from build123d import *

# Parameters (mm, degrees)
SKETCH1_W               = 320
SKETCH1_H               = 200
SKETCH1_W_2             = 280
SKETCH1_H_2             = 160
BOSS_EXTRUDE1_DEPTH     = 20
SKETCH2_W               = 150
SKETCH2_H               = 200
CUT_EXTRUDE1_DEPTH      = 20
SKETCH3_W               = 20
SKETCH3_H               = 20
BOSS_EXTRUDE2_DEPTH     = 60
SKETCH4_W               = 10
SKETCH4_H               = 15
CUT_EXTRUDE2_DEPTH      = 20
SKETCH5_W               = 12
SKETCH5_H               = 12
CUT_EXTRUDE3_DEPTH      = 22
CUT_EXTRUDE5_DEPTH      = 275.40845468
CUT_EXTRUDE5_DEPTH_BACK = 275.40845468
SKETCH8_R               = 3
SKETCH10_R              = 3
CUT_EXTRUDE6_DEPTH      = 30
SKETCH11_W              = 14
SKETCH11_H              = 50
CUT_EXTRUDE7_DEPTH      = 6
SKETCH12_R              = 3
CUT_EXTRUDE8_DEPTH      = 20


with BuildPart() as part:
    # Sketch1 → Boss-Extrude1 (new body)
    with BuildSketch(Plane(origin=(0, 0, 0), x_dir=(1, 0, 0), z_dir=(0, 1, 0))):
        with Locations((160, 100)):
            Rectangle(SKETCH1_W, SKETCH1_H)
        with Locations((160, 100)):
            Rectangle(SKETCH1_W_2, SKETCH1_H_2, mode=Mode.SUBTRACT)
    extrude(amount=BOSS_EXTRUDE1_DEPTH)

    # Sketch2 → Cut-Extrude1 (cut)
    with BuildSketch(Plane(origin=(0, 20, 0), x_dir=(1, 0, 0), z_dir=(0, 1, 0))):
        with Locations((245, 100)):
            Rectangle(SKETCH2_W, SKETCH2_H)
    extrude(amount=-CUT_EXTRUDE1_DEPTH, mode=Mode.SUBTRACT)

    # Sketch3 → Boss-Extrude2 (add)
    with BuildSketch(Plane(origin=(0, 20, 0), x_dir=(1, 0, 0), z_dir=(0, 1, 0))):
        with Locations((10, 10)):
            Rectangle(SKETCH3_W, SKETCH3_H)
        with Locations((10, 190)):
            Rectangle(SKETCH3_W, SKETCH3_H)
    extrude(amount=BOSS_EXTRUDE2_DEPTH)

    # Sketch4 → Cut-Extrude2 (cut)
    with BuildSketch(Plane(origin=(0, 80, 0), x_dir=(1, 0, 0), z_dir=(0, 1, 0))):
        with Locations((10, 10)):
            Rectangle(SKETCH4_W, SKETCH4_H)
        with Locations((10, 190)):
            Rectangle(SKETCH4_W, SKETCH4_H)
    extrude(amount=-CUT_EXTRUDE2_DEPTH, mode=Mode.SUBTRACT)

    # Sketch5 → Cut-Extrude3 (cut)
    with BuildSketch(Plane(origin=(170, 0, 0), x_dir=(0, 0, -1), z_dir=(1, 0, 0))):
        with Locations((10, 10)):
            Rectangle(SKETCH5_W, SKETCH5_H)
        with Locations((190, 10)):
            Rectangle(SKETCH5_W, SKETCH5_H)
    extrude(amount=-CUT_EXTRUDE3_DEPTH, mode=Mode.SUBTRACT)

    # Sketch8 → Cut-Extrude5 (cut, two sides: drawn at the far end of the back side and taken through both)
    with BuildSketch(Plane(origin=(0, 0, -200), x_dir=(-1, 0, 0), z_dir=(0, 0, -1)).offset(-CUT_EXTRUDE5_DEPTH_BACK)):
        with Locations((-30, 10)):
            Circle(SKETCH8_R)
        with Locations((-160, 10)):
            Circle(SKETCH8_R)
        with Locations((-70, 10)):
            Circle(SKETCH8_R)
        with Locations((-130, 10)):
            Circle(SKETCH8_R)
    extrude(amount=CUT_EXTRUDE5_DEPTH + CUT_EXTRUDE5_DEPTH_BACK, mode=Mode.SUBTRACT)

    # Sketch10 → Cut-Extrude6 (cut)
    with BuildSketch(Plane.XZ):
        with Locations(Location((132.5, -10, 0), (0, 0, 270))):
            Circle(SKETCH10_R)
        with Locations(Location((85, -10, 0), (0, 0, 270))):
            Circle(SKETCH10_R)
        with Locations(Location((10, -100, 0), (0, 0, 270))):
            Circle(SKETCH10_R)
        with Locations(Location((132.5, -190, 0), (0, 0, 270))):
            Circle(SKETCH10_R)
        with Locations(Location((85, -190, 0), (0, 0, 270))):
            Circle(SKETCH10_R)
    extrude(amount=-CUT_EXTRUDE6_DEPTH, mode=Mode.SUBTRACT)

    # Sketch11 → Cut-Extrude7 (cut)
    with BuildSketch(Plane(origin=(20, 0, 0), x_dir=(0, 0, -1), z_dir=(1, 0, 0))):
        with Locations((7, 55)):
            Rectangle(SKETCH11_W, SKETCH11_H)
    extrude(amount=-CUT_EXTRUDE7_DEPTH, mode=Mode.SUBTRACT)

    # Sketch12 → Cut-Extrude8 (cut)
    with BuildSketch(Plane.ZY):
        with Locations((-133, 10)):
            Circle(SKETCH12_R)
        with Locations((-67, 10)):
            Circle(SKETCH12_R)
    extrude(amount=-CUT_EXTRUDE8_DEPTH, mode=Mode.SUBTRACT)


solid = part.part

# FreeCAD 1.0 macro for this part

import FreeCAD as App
import Part
import Sketcher
from FreeCAD import Vector
Q = App.Units.Quantity

doc = App.newDocument("Part")
params = doc.addObject("Spreadsheet::Sheet", "Params")
for row, (alias, value) in enumerate([
    ("sketch1_width", "320 mm"),
    ("sketch1_width2", "280 mm"),
    ("sketch1_height", "200 mm"),
    ("sketch1_height2", "160 mm"),
    ("pad1_length", "20 mm"),
    ("sketch2_width", "150 mm"),
    ("sketch2_height", "200 mm"),
    ("pocket1_length", "20 mm"),
    ("sketch3_width", "20 mm"),
    ("pad2_length", "60 mm"),
    ("sketch4_width", "10 mm"),
    ("sketch4_height", "15 mm"),
    ("pocket2_length", "20 mm"),
    ("sketch5_width", "12 mm"),
    ("pocket3_length", "22 mm"),
    ("sketch6_diameter", "6 mm"),
    ("sketch7_diameter", "6 mm"),
    ("pocket5_length", "30 mm"),
    ("sketch8_width", "50 mm"),
    ("sketch8_height", "14 mm"),
    ("pocket6_length", "6 mm"),
    ("sketch9_diameter", "6 mm"),
    ("pocket7_length", "20 mm"),
], start=1):
    params.set(f"A{row}", alias)
    params.set(f"B{row}", "=" + value)
    params.setAlias(f"B{row}", alias)

body = doc.addObject("PartDesign::Body", "Body")

# Sketch on XZ plane
sketch1 = doc.addObject("Sketcher::SketchObject", "Sketch")
body.addObject(sketch1)
sketch1.AttachmentSupport = (doc.XZ_Plane, [""])
sketch1.MapMode = "FlatFace"
sketch1.addGeometry([
    Part.LineSegment(Vector(0, -200, 0), Vector(0, 0, 0)),  # 0
    Part.LineSegment(Vector(0, 0, 0), Vector(320, 0, 0)),  # 1
    Part.LineSegment(Vector(320, 0, 0), Vector(320, -200, 0)),  # 2
    Part.LineSegment(Vector(320, -200, 0), Vector(0, -200, 0)),  # 3
    Part.LineSegment(Vector(300, -20, 0), Vector(20, -20, 0)),  # 4
    Part.LineSegment(Vector(20, -20, 0), Vector(20, -180, 0)),  # 5
    Part.LineSegment(Vector(20, -180, 0), Vector(300, -180, 0)),  # 6
    Part.LineSegment(Vector(300, -180, 0), Vector(300, -20, 0)),  # 7
], False)
sketch1.addConstraint([
    Sketcher.Constraint("Coincident", 0, 2, 1, 1),
    Sketcher.Constraint("Coincident", 1, 2, 2, 1),
    Sketcher.Constraint("Coincident", 2, 2, 3, 1),
    Sketcher.Constraint("Coincident", 3, 2, 0, 1),
    Sketcher.Constraint("Coincident", 4, 2, 5, 1),
    Sketcher.Constraint("Coincident", 5, 2, 6, 1),
    Sketcher.Constraint("Coincident", 6, 2, 7, 1),
    Sketcher.Constraint("Coincident", 7, 2, 4, 1),
    Sketcher.Constraint("Vertical", 0),
    Sketcher.Constraint("Horizontal", 1),
    Sketcher.Constraint("Vertical", 2),
    Sketcher.Constraint("Horizontal", 3),
    Sketcher.Constraint("Horizontal", 4),
    Sketcher.Constraint("Vertical", 5),
    Sketcher.Constraint("Horizontal", 6),
    Sketcher.Constraint("Vertical", 7),
    Sketcher.Constraint("Coincident", 0, 2, -1, 1),
    Sketcher.Constraint("DistanceX", 1, 1, 1, 2, Q("320 mm")),
    Sketcher.Constraint("DistanceX", 4, 2, 4, 1, Q("280 mm")),
    Sketcher.Constraint("DistanceY", 0, 1, 0, 2, Q("200 mm")),
    Sketcher.Constraint("DistanceY", 5, 2, 5, 1, Q("160 mm")),
    Sketcher.Constraint("DistanceX", -1, 1, 4, 2, Q("20 mm")),
    Sketcher.Constraint("DistanceY", 4, 2, -1, 1, Q("20 mm")),
])
sketch1.setExpression("Constraints[17]", "Params.sketch1_width")
sketch1.setExpression("Constraints[18]", "Params.sketch1_width2")
sketch1.setExpression("Constraints[19]", "Params.sketch1_height")
sketch1.setExpression("Constraints[20]", "Params.sketch1_height2")
pad1 = doc.addObject("PartDesign::Pad", "Pad")
body.addObject(pad1)
pad1.Profile = sketch1
pad1.setExpression("Length", "Params.pad1_length")
pad1.Reversed = True

# Sketch on XZ plane
sketch2 = doc.addObject("Sketcher::SketchObject", "Sketch001")
body.addObject(sketch2)
sketch2.AttachmentSupport = (doc.XZ_Plane, [""])
sketch2.MapMode = "FlatFace"
sketch2.AttachmentOffset = App.Placement(Vector(0, 0, -20), App.Rotation())
sketch2.addGeometry([
    Part.LineSegment(Vector(170, -200, 0), Vector(170, 0, 0)),
    Part.LineSegment(Vector(170, 0, 0), Vector(320, 0, 0)),
    Part.LineSegment(Vector(320, 0, 0), Vector(320, -200, 0)),
    Part.LineSegment(Vector(320, -200, 0), Vector(170, -200, 0)),
], False)
sketch2.addConstraint([
    Sketcher.Constraint("Coincident", 0, 2, 1, 1),
    Sketcher.Constraint("Coincident", 1, 2, 2, 1),
    Sketcher.Constraint("Coincident", 2, 2, 3, 1),
    Sketcher.Constraint("Coincident", 3, 2, 0, 1),
    Sketcher.Constraint("Vertical", 0),
    Sketcher.Constraint("Horizontal", 1),
    Sketcher.Constraint("Vertical", 2),
    Sketcher.Constraint("Horizontal", 3),
    Sketcher.Constraint("PointOnObject", 0, 2, -1),
    Sketcher.Constraint("DistanceX", 1, 1, 1, 2, Q("150 mm")),
    Sketcher.Constraint("DistanceY", 0, 1, 0, 2, Q("200 mm")),
    Sketcher.Constraint("DistanceX", -1, 1, 0, 2, Q("170 mm")),
])
sketch2.setExpression("Constraints[9]", "Params.sketch2_width")
sketch2.setExpression("Constraints[10]", "Params.sketch2_height")
pocket1 = doc.addObject("PartDesign::Pocket", "Pocket")
body.addObject(pocket1)
pocket1.Profile = sketch2
pocket1.setExpression("Length", "Params.pocket1_length")
pocket1.Reversed = True

# Sketch on XZ plane
sketch3 = doc.addObject("Sketcher::SketchObject", "Sketch002")
body.addObject(sketch3)
sketch3.AttachmentSupport = (doc.XZ_Plane, [""])
sketch3.MapMode = "FlatFace"
sketch3.AttachmentOffset = App.Placement(Vector(0, 0, -20), App.Rotation())
sketch3.addGeometry([
    Part.LineSegment(Vector(0, -20, 0), Vector(0, 0, 0)),  # 0
    Part.LineSegment(Vector(0, 0, 0), Vector(20, 0, 0)),  # 1
    Part.LineSegment(Vector(20, 0, 0), Vector(20, -20, 0)),  # 2
    Part.LineSegment(Vector(20, -20, 0), Vector(0, -20, 0)),  # 3
    Part.LineSegment(Vector(0, -200, 0), Vector(0, -180, 0)),  # 4
    Part.LineSegment(Vector(0, -180, 0), Vector(20, -180, 0)),  # 5
    Part.LineSegment(Vector(20, -180, 0), Vector(20, -200, 0)),  # 6
    Part.LineSegment(Vector(20, -200, 0), Vector(0, -200, 0)),  # 7
], False)
sketch3.addConstraint([
    Sketcher.Constraint("Coincident", 0, 2, 1, 1),
    Sketcher.Constraint("Coincident", 1, 2, 2, 1),
    Sketcher.Constraint("Coincident", 2, 2, 3, 1),
    Sketcher.Constraint("Coincident", 3, 2, 0, 1),
    Sketcher.Constraint("Coincident", 4, 2, 5, 1),
    Sketcher.Constraint("Coincident", 5, 2, 6, 1),
    Sketcher.Constraint("Coincident", 6, 2, 7, 1),
    Sketcher.Constraint("Coincident", 7, 2, 4, 1),
    Sketcher.Constraint("Vertical", 0),
    Sketcher.Constraint("Horizontal", 1),
    Sketcher.Constraint("Vertical", 2),
    Sketcher.Constraint("Horizontal", 3),
    Sketcher.Constraint("Vertical", 4),
    Sketcher.Constraint("Horizontal", 5),
    Sketcher.Constraint("Vertical", 6),
    Sketcher.Constraint("Horizontal", 7),
    Sketcher.Constraint("Coincident", 0, 2, -1, 1),
    Sketcher.Constraint("PointOnObject", 4, 2, -2),
    Sketcher.Constraint("Vertical", 2, 2, 5, 2),
    Sketcher.Constraint("Equal", 7, 0),
    Sketcher.Constraint("Equal", 2, 4),
    Sketcher.Constraint("DistanceX", 1, 1, 1, 2, Q("20 mm")),
    Sketcher.Constraint("DistanceY", 4, 2, -1, 1, Q("180 mm")),
])
sketch3.setExpression("Constraints[21]", "Params.sketch3_width")
pad2 = doc.addObject("PartDesign::Pad", "Pad001")
body.addObject(pad2)
pad2.Profile = sketch3
pad2.setExpression("Length", "Params.pad2_length")
pad2.Reversed = True

# Sketch on XZ plane
sketch4 = doc.addObject("Sketcher::SketchObject", "Sketch003")
body.addObject(sketch4)
sketch4.AttachmentSupport = (doc.XZ_Plane, [""])
sketch4.MapMode = "FlatFace"
sketch4.AttachmentOffset = App.Placement(Vector(0, 0, -80), App.Rotation())
sketch4.addGeometry([
    Part.LineSegment(Vector(5, -18, 0), Vector(5, -2, 0)),  # 0
    Part.LineSegment(Vector(5, -2, 0), Vector(15, -2, 0)),  # 1
    Part.LineSegment(Vector(15, -2, 0), Vector(15, -18, 0)),  # 2
    Part.LineSegment(Vector(15, -18, 0), Vector(5, -18, 0)),  # 3
    Part.LineSegment(Vector(5, -198, 0), Vector(5, -182, 0)),  # 4
    Part.LineSegment(Vector(5, -182, 0), Vector(15, -182, 0)),  # 5
    Part.LineSegment(Vector(15, -182, 0), Vector(15, -198, 0)),  # 6
    Part.LineSegment(Vector(15, -198, 0), Vector(5, -198, 0)),  # 7
], False)
sketch4.addConstraint([
    Sketcher.Constraint("Coincident", 0, 2, 1, 1),
    Sketcher.Constraint("Coincident", 1, 2, 2, 1),
    Sketcher.Constraint("Coincident", 2, 2, 3, 1),
    Sketcher.Constraint("Coincident", 3, 2, 0, 1),
    Sketcher.Constraint("Coincident", 4, 2, 5, 1),
    Sketcher.Constraint("Coincident", 5, 2, 6, 1),
    Sketcher.Constraint("Coincident", 6, 2, 7, 1),
    Sketcher.Constraint("Coincident", 7, 2, 4, 1),
    Sketcher.Constraint("Vertical", 0),
    Sketcher.Constraint("Horizontal", 1),
    Sketcher.Constraint("Vertical", 2),
    Sketcher.Constraint("Horizontal", 3),
    Sketcher.Constraint("Vertical", 4),
    Sketcher.Constraint("Horizontal", 5),
    Sketcher.Constraint("Vertical", 6),
    Sketcher.Constraint("Horizontal", 7),
    Sketcher.Constraint("Vertical", 3, 2, 4, 2),
    Sketcher.Constraint("Vertical", 2, 2, 5, 2),
    Sketcher.Constraint("Equal", 2, 4),
    Sketcher.Constraint("DistanceX", 1, 1, 1, 2, Q("10 mm")),
    Sketcher.Constraint("DistanceY", 0, 1, 0, 2, Q("15 mm")),
    Sketcher.Constraint("DistanceX", -1, 1, 0, 2, Q("5 mm")),
    Sketcher.Constraint("DistanceY", 4, 2, 3, 2, Q("165 mm")),
    Sketcher.Constraint("DistanceY", 0, 2, -1, 1, Q("2.5 mm")),
])
sketch4.setExpression("Constraints[19]", "Params.sketch4_width")
sketch4.setExpression("Constraints[20]", "Params.sketch4_height")
pocket2 = doc.addObject("PartDesign::Pocket", "Pocket001")
body.addObject(pocket2)
pocket2.Profile = sketch4
pocket2.setExpression("Length", "Params.pocket2_length")
pocket2.Reversed = True

# Sketch on YZ plane
sketch5 = doc.addObject("Sketcher::SketchObject", "Sketch004")
body.addObject(sketch5)
sketch5.AttachmentSupport = (doc.YZ_Plane, [""])
sketch5.MapMode = "FlatFace"
sketch5.AttachmentOffset = App.Placement(Vector(0, 0, 170), App.Rotation())
sketch5.addGeometry([
    Part.LineSegment(Vector(16, -4, 0), Vector(4, -4, 0)),  # 0
    Part.LineSegment(Vector(4, -4, 0), Vector(4, -16, 0)),  # 1
    Part.LineSegment(Vector(4, -16, 0), Vector(16, -16, 0)),  # 2
    Part.LineSegment(Vector(16, -16, 0), Vector(16, -4, 0)),  # 3
    Part.LineSegment(Vector(16, -184, 0), Vector(4, -184, 0)),  # 4
    Part.LineSegment(Vector(4, -184, 0), Vector(4, -196, 0)),  # 5
    Part.LineSegment(Vector(4, -196, 0), Vector(16, -196, 0)),  # 6
    Part.LineSegment(Vector(16, -196, 0), Vector(16, -184, 0)),  # 7
], False)
sketch5.addConstraint([
    Sketcher.Constraint("Coincident", 0, 2, 1, 1),
    Sketcher.Constraint("Coincident", 1, 2, 2, 1),
    Sketcher.Constraint("Coincident", 2, 2, 3, 1),
    Sketcher.Constraint("Coincident", 3, 2, 0, 1),
    Sketcher.Constraint("Coincident", 4, 2, 5, 1),
    Sketcher.Constraint("Coincident", 5, 2, 6, 1),
    Sketcher.Constraint("Coincident", 6, 2, 7, 1),
    Sketcher.Constraint("Coincident", 7, 2, 4, 1),
    Sketcher.Constraint("Horizontal", 0),
    Sketcher.Constraint("Vertical", 1),
    Sketcher.Constraint("Horizontal", 2),
    Sketcher.Constraint("Vertical", 3),
    Sketcher.Constraint("Horizontal", 4),
    Sketcher.Constraint("Vertical", 5),
    Sketcher.Constraint("Horizontal", 6),
    Sketcher.Constraint("Vertical", 7),
    Sketcher.Constraint("Vertical", 1, 2, 4, 2),
    Sketcher.Constraint("Vertical", 3, 2, 6, 2),
    Sketcher.Constraint("Equal", 6, 1),
    Sketcher.Constraint("Equal", 3, 5),
    Sketcher.Constraint("DistanceX", 0, 2, 0, 1, Q("12 mm")),
    Sketcher.Constraint("DistanceX", -1, 1, 0, 2, Q("4 mm")),
    Sketcher.Constraint("DistanceY", 0, 2, -1, 1, Q("4 mm")),
    Sketcher.Constraint("DistanceY", 4, 2, -1, 1, Q("184 mm")),
])
sketch5.setExpression("Constraints[20]", "Params.sketch5_width")
pocket3 = doc.addObject("PartDesign::Pocket", "Pocket002")
body.addObject(pocket3)
pocket3.Profile = sketch5
pocket3.setExpression("Length", "Params.pocket3_length")

# Sketch on XY plane
sketch6 = doc.addObject("Sketcher::SketchObject", "Sketch005")
body.addObject(sketch6)
sketch6.AttachmentSupport = (doc.XY_Plane, [""])
sketch6.MapMode = "FlatFace"
sketch6.AttachmentOffset = App.Placement(Vector(0, 0, -200), App.Rotation())
sketch6.addGeometry([
    Part.Circle(Vector(30, 10, 0), Vector(0, 0, 1), 3),
    Part.Circle(Vector(160, 10, 0), Vector(0, 0, 1), 3),
    Part.Circle(Vector(70, 10, 0), Vector(0, 0, 1), 3),
    Part.Circle(Vector(130, 10, 0), Vector(0, 0, 1), 3),
], False)
sketch6.addConstraint([
    Sketcher.Constraint("Equal", 0, 1),
    Sketcher.Constraint("Equal", 1, 2),
    Sketcher.Constraint("Equal", 2, 3),
    Sketcher.Constraint("Horizontal", 0, 3, 1, 3),
    Sketcher.Constraint("Horizontal", 1, 3, 2, 3),
    Sketcher.Constraint("Horizontal", 2, 3, 3, 3),
    Sketcher.Constraint("Diameter", 0, Q("6 mm")),
    Sketcher.Constraint("DistanceX", -1, 1, 0, 3, Q("30 mm")),
    Sketcher.Constraint("DistanceY", -1, 1, 0, 3, Q("10 mm")),
    Sketcher.Constraint("DistanceX", -1, 1, 1, 3, Q("160 mm")),
    Sketcher.Constraint("DistanceX", -1, 1, 2, 3, Q("70 mm")),
    Sketcher.Constraint("DistanceX", -1, 1, 3, 3, Q("130 mm")),
])
sketch6.setExpression("Constraints[6]", "Params.sketch6_diameter")
pocket4 = doc.addObject("PartDesign::Pocket", "Pocket003")
body.addObject(pocket4)
pocket4.Profile = sketch6
pocket4.Type = "ThroughAll"
pocket4.Midplane = True

# Sketch on XZ plane
sketch7 = doc.addObject("Sketcher::SketchObject", "Sketch006")
body.addObject(sketch7)
sketch7.AttachmentSupport = (doc.XZ_Plane, [""])
sketch7.MapMode = "FlatFace"
sketch7.addGeometry([
    Part.Circle(Vector(132.5, -10, 0), Vector(0, 0, 1), 3),  # 0
    Part.Circle(Vector(85, -10, 0), Vector(0, 0, 1), 3),  # 1
    Part.Circle(Vector(10, -100, 0), Vector(0, 0, 1), 3),  # 2
    Part.Circle(Vector(132.5, -190, 0), Vector(0, 0, 1), 3),  # 3
    Part.Circle(Vector(85, -190, 0), Vector(0, 0, 1), 3),  # 4
], False)
sketch7.addConstraint([
    Sketcher.Constraint("Equal", 0, 1),
    Sketcher.Constraint("Equal", 1, 2),
    Sketcher.Constraint("Equal", 2, 3),
    Sketcher.Constraint("Equal", 3, 4),
    Sketcher.Constraint("Horizontal", 0, 3, 1, 3),
    Sketcher.Constraint("Horizontal", 3, 3, 4, 3),
    Sketcher.Constraint("Vertical", 0, 3, 3, 3),
    Sketcher.Constraint("Vertical", 1, 3, 4, 3),
    Sketcher.Constraint("Diameter", 0, Q("6 mm")),
    Sketcher.Constraint("DistanceY", 0, 3, -1, 1, Q("10 mm")),
    Sketcher.Constraint("DistanceX", -1, 1, 1, 3, Q("85 mm")),
    Sketcher.Constraint("DistanceX", -1, 1, 2, 3, Q("10 mm")),
    Sketcher.Constraint("DistanceY", 2, 3, -1, 1, Q("100 mm")),
    Sketcher.Constraint("DistanceY", 3, 3, -1, 1, Q("190 mm")),
    Sketcher.Constraint("DistanceX", -1, 1, 0, 3, Q("132.5 mm")),
])
sketch7.setExpression("Constraints[8]", "Params.sketch7_diameter")
pocket5 = doc.addObject("PartDesign::Pocket", "Pocket004")
body.addObject(pocket5)
pocket5.Profile = sketch7
pocket5.setExpression("Length", "Params.pocket5_length")

# Sketch on YZ plane
sketch8 = doc.addObject("Sketcher::SketchObject", "Sketch007")
body.addObject(sketch8)
sketch8.AttachmentSupport = (doc.YZ_Plane, [""])
sketch8.MapMode = "FlatFace"
sketch8.AttachmentOffset = App.Placement(Vector(0, 0, 20), App.Rotation())
sketch8.addGeometry([
    Part.LineSegment(Vector(80, 0, 0), Vector(30, 0, 0)),
    Part.LineSegment(Vector(30, 0, 0), Vector(30, -14, 0)),
    Part.LineSegment(Vector(30, -14, 0), Vector(80, -14, 0)),
    Part.LineSegment(Vector(80, -14, 0), Vector(80, 0, 0)),
], False)
sketch8.addConstraint([
    Sketcher.Constraint("Coincident", 0, 2, 1, 1),
    Sketcher.Constraint("Coincident", 1, 2, 2, 1),
    Sketcher.Constraint("Coincident", 2, 2, 3, 1),
    Sketcher.Constraint("Coincident", 3, 2, 0, 1),
    Sketcher.Constraint("Horizontal", 0),
    Sketcher.Constraint("Vertical", 1),
    Sketcher.Constraint("Horizontal", 2),
    Sketcher.Constraint("Vertical", 3),
    Sketcher.Constraint("PointOnObject", 0, 2, -1),
    Sketcher.Constraint("DistanceX", 0, 2, 0, 1, Q("50 mm")),
    Sketcher.Constraint("DistanceY", 1, 2, 1, 1, Q("14 mm")),
    Sketcher.Constraint("DistanceX", -1, 1, 0, 2, Q("30 mm")),
])
sketch8.setExpression("Constraints[9]", "Params.sketch8_width")
sketch8.setExpression("Constraints[10]", "Params.sketch8_height")
pocket6 = doc.addObject("PartDesign::Pocket", "Pocket005")
body.addObject(pocket6)
pocket6.Profile = sketch8
pocket6.setExpression("Length", "Params.pocket6_length")

# Sketch on YZ plane
sketch9 = doc.addObject("Sketcher::SketchObject", "Sketch008")
body.addObject(sketch9)
sketch9.AttachmentSupport = (doc.YZ_Plane, [""])
sketch9.MapMode = "FlatFace"
sketch9.addGeometry([
    Part.Circle(Vector(10, -133, 0), Vector(0, 0, 1), 3),
    Part.Circle(Vector(10, -67, 0), Vector(0, 0, 1), 3),
], False)
sketch9.addConstraint([
    Sketcher.Constraint("Equal", 0, 1),
    Sketcher.Constraint("Vertical", 0, 3, 1, 3),
    Sketcher.Constraint("Diameter", 0, Q("6 mm")),
    Sketcher.Constraint("DistanceX", -1, 1, 0, 3, Q("10 mm")),
    Sketcher.Constraint("DistanceY", 0, 3, -1, 1, Q("133 mm")),
    Sketcher.Constraint("DistanceY", 1, 3, -1, 1, Q("67 mm")),
])
sketch9.setExpression("Constraints[2]", "Params.sketch9_diameter")
pocket7 = doc.addObject("PartDesign::Pocket", "Pocket006")
body.addObject(pocket7)
pocket7.Profile = sketch9
pocket7.setExpression("Length", "Params.pocket7_length")
pocket7.Reversed = True

doc.recompute()
